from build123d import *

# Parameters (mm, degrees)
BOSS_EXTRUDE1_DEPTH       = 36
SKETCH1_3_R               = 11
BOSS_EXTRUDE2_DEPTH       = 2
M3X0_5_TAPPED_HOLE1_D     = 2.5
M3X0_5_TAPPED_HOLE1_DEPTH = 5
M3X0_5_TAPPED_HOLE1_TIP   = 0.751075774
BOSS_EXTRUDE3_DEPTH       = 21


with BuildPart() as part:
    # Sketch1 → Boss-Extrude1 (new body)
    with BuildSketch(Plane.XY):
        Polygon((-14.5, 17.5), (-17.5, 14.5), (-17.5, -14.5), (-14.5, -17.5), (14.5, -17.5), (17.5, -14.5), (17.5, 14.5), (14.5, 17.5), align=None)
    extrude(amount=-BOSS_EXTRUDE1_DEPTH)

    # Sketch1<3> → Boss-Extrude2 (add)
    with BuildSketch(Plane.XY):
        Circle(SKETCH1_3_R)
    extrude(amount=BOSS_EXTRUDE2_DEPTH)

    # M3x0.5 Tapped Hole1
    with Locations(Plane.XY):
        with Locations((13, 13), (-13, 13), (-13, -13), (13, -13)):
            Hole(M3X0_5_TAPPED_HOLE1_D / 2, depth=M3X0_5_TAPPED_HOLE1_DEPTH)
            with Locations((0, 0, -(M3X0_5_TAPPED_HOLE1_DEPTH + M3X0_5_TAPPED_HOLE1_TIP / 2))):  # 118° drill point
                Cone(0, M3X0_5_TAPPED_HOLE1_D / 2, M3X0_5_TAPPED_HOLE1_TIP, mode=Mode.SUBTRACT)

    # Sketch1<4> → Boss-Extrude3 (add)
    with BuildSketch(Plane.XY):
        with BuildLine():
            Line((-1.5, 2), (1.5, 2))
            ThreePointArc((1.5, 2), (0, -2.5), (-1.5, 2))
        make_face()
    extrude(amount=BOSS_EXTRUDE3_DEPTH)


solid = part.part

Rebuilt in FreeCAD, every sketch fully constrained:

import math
import FreeCAD as App
import Part
import Sketcher

V = App.Vector
Q = App.Units.Quantity


def add_polygon(sketch, points):
    """Adds a closed chain of lines whose ends are joined by coincident constraints."""
    first, n = sketch.GeometryCount, len(points)
    for a, b in zip(points, points[1:] + points[:1]):
        sketch.addGeometry(Part.LineSegment(App.Vector(*a, 0), App.Vector(*b, 0)), False)
    for i in range(n):
        sketch.addConstraint(Sketcher.Constraint("Coincident", first + i, 2, first + (i + 1) % n, 1))

doc = App.newDocument("Part")
params = doc.addObject("Spreadsheet::Sheet", "Params")
for row, (alias, value) in enumerate([
    ("sketch1_width", "29 mm"),
    ("pad1_length", "36 mm"),
    ("sketch2_diameter", "22 mm"),
    ("pad2_length", "2 mm"),
    ("sketch3_diameter", "2.5 mm"),
    ("hole_diameter", "2.5 mm"),
    ("hole_depth", "5 mm"),
    ("sketch4_radius", "2.5 mm"),
    ("sketch4_width", "3 mm"),
    ("pad3_length", "21 mm"),
], start=1):
    params.set(f"A{row}", alias)
    params.set(f"B{row}", "=" + value)
    params.setAlias(f"B{row}", alias)

body = doc.addObject("PartDesign::Body", "Body")

# Sketch on XY plane
sketch1 = body.newObject("Sketcher::SketchObject", "Sketch")
sketch1.AttachmentSupport = (doc.getObject("XY_Plane"), [""])
sketch1.MapMode = "FlatFace"
add_polygon(sketch1, [(-14.5, 17.5), (-17.5, 14.5), (-17.5, -14.5), (-14.5, -17.5), (14.5, -17.5), (17.5, -14.5), (17.5, 14.5), (14.5, 17.5)])  # lines 0-7
sketch1.addConstraint([
    Sketcher.Constraint("Vertical", 1),
    Sketcher.Constraint("Horizontal", 3),
    Sketcher.Constraint("Vertical", 5),
    Sketcher.Constraint("Horizontal", 7),
    Sketcher.Constraint("Symmetric", 0, 2, 4, 2, -1, 1),
    Sketcher.Constraint("Symmetric", 2, 2, 6, 2, -1, 1),
    Sketcher.Constraint("Perpendicular", 0, 2),
    Sketcher.Constraint("Perpendicular", 2, 4),
    Sketcher.Constraint("Perpendicular", 4, 6),
    Sketcher.Constraint("Horizontal", 1, 2, 4, 2),
    Sketcher.Constraint("Vertical", 3, 2, 6, 2),
    Sketcher.Constraint("Equal", 7, 1),
    Sketcher.Constraint("DistanceX", 3, 1, 3, 2, Q("29 mm")),
    Sketcher.Constraint("DistanceX", 1, 2, 2, 2, Q("3 mm")),
])
sketch1.setExpression("Constraints[20]", "Params.sketch1_width")
pad1 = body.newObject("PartDesign::Pad", "Pad")
pad1.Profile = sketch1
pad1.setExpression("Length", "Params.pad1_length")
pad1.Reversed = True

# Sketch on XY plane
sketch2 = body.newObject("Sketcher::SketchObject", "Sketch001")
sketch2.AttachmentSupport = (doc.getObject("XY_Plane"), [""])
sketch2.MapMode = "FlatFace"
sketch2.addGeometry(Part.Circle(V(0, 0, 0), V(0, 0, 1), 11), False)
sketch2.addConstraint([
    Sketcher.Constraint("Coincident", 0, 3, -1, 1),
    Sketcher.Constraint("Diameter", 0, Q("22 mm")),
])
sketch2.setExpression("Constraints[1]", "Params.sketch2_diameter")
pad2 = body.newObject("PartDesign::Pad", "Pad001")
pad2.Profile = sketch2
pad2.setExpression("Length", "Params.pad2_length")

# Sketch on XY plane
sketch3 = body.newObject("Sketcher::SketchObject", "Sketch002")
sketch3.AttachmentSupport = (doc.getObject("XY_Plane"), [""])
sketch3.MapMode = "FlatFace"
sketch3.addGeometry([
    Part.Circle(V(13, 13, 0), V(0, 0, 1), 1.2),
    Part.Circle(V(-13, 13, 0), V(0, 0, 1), 1.2),
    Part.Circle(V(-13, -13, 0), V(0, 0, 1), 1.2),
    Part.Circle(V(13, -13, 0), V(0, 0, 1), 1.2),
], False)
sketch3.addConstraint([
    Sketcher.Constraint("Equal", 0, 1),
    Sketcher.Constraint("Equal", 1, 2),
    Sketcher.Constraint("Equal", 2, 3),
    Sketcher.Constraint("Symmetric", 0, 3, 2, 3, -1, 1),
    Sketcher.Constraint("Symmetric", 1, 3, 3, 3, -1, 1),
    Sketcher.Constraint("Symmetric", 0, 3, 1, 3, -2),
    Sketcher.Constraint("Diameter", 0, Q("2.5 mm")),
    Sketcher.Constraint("DistanceX", -1, 1, 0, 3, Q("13 mm")),
    Sketcher.Constraint("DistanceY", -1, 1, 0, 3, Q("13 mm")),
])
sketch3.setExpression("Constraints[6]", "Params.sketch3_diameter")
doc.recompute()
hole = body.newObject("PartDesign::Hole", "Hole")
hole.Profile = sketch3
hole.ThreadType = "None"
hole.setExpression("Diameter", "Params.hole_diameter")
hole.DepthType = "Dimension"
hole.setExpression("Depth", "Params.hole_depth")
hole.DrillPoint = "Angled"
hole.DrillPointAngle = 118

# Sketch on XY plane
sketch4 = body.newObject("Sketcher::SketchObject", "Sketch003")
sketch4.AttachmentSupport = (doc.getObject("XY_Plane"), [""])
sketch4.MapMode = "FlatFace"
sketch4.addGeometry([
    Part.LineSegment(V(1.5, 2, 0), V(-1.5, 2, 0)),
    Part.ArcOfCircle(Part.Circle(V(0, 0, 0), V(0, 0, 1), 2.5), math.radians(127), math.radians(413)),
], False)
sketch4.addConstraint([
    Sketcher.Constraint("Coincident", 0, 1, 1, 2),
    Sketcher.Constraint("Coincident", 1, 1, 0, 2),
    Sketcher.Constraint("Horizontal", 0),
    Sketcher.Constraint("Coincident", 1, 3, -1, 1),
    Sketcher.Constraint("Radius", 1, Q("2.5 mm")),
    Sketcher.Constraint("DistanceX", 0, 2, 0, 1, Q("3 mm")),
])
sketch4.setExpression("Constraints[4]", "Params.sketch4_radius")
sketch4.setExpression("Constraints[5]", "Params.sketch4_width")
pad3 = body.newObject("PartDesign::Pad", "Pad002")
pad3.Profile = sketch4
pad3.setExpression("Length", "Params.pad3_length")

doc.recompute()
